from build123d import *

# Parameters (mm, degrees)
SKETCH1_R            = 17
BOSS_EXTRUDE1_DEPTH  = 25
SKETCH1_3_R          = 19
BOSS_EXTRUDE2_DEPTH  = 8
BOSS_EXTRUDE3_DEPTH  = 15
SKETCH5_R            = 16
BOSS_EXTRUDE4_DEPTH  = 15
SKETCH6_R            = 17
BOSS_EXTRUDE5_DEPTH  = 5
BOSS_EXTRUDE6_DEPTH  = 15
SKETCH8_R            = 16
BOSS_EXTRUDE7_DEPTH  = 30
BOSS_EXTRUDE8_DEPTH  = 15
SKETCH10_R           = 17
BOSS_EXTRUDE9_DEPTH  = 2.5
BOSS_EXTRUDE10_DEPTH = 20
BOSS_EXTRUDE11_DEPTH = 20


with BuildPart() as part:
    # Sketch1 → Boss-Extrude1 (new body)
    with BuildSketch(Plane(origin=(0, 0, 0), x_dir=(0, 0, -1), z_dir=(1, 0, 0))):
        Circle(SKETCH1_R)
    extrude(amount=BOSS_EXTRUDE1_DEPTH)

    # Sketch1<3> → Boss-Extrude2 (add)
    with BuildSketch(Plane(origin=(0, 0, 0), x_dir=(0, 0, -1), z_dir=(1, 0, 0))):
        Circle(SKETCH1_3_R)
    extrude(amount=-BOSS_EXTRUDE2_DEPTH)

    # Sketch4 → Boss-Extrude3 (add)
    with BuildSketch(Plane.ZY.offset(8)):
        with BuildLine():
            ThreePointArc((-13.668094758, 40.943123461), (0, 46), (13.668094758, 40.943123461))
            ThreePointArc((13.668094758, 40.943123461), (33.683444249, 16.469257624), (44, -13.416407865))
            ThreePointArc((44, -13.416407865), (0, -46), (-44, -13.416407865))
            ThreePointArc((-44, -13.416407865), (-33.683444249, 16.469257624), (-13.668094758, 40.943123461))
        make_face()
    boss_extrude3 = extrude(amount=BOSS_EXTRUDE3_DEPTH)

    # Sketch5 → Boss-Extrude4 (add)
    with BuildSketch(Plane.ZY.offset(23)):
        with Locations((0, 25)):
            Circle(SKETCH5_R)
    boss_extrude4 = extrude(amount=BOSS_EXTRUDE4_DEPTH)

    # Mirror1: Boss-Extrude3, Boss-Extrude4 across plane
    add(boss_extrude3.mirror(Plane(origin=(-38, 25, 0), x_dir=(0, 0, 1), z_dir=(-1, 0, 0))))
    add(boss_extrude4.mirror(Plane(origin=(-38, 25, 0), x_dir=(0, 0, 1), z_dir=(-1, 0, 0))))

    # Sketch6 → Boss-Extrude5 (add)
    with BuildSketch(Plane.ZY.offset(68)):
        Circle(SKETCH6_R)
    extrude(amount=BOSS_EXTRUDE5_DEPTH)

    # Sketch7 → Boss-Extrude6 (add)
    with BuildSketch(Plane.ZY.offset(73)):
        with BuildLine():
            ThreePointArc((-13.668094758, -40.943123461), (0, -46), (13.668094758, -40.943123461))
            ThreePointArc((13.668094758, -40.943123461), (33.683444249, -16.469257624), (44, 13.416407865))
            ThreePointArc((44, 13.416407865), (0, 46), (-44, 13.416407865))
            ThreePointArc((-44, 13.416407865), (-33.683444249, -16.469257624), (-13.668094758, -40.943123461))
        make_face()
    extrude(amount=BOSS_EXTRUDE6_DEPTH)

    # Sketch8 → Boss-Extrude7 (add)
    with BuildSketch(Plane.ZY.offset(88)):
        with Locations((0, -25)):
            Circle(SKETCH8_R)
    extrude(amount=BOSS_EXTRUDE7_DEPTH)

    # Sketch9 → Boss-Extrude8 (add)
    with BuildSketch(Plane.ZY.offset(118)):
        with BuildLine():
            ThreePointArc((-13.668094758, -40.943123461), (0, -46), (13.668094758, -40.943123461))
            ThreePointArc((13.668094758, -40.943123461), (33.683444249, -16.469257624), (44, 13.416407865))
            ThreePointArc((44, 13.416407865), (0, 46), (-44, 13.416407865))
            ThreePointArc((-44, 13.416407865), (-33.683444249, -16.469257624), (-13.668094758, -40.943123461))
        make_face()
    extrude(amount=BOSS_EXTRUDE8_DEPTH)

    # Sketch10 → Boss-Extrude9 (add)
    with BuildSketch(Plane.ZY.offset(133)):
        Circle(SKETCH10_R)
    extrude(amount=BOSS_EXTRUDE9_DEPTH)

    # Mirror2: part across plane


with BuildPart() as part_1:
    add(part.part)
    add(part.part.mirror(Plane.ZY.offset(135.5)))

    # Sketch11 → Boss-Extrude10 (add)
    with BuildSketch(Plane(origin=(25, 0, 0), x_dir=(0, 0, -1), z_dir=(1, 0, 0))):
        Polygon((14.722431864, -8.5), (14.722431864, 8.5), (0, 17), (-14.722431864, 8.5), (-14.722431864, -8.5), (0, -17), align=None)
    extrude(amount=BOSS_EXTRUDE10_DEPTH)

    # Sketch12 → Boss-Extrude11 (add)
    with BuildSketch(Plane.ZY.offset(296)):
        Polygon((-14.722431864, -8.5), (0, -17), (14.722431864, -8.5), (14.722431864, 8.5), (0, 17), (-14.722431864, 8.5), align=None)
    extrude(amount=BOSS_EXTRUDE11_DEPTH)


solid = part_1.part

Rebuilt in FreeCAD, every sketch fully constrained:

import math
import FreeCAD as App
import Part
import Sketcher
Q = App.Units.Quantity


def add_polygon(sketch, points):
    """Adds a closed chain of lines whose ends are joined by coincident constraints."""
    first, n = sketch.GeometryCount, len(points)
    for a, b in zip(points, points[1:] + points[:1]):
        sketch.addGeometry(Part.LineSegment(App.Vector(*a, 0), App.Vector(*b, 0)), False)
    for i in range(n):
        sketch.addConstraint(Sketcher.Constraint("Coincident", first + i, 2, first + (i + 1) % n, 1))

doc = App.newDocument("Part")
params = doc.addObject("Spreadsheet::Sheet", "Params")
for row, (alias, value) in enumerate([
    ("sketch1_diameter", "34 mm"),
    ("pad1_length", "25 mm"),
    ("sketch2_diameter", "38 mm"),
    ("pad2_length", "8 mm"),
    ("sketch3_radius", "21 mm"),
    ("sketch3_radius2", "90 mm"),
    ("sketch3_radius3", "46 mm"),
    ("pad3_length", "15 mm"),
    ("sketch4_diameter", "32 mm"),
    ("pad4_length", "15 mm"),
    ("sketch5_diameter", "34 mm"),
    ("pad5_length", "5 mm"),
    ("sketch6_radius", "21 mm"),
    ("sketch6_radius2", "90 mm"),
    ("sketch6_radius3", "46 mm"),
    ("pad6_length", "15 mm"),
    ("sketch7_diameter", "32 mm"),
    ("pad7_length", "30 mm"),
    ("sketch8_radius", "21 mm"),
    ("sketch8_radius2", "90 mm"),
    ("sketch8_radius3", "46 mm"),
    ("pad8_length", "15 mm"),
    ("sketch9_diameter", "34 mm"),
    ("pad9_length", "2.5 mm"),
    ("sketch10_width", "17 mm"),
    ("sketch10_length", "17 mm"),
    ("pad10_length", "20 mm"),
    ("sketch11_width", "17 mm"),
    ("sketch11_length", "17 mm"),
    ("pad11_length", "20 mm"),
], start=1):
    params.set(f"A{row}", alias)
    params.set(f"B{row}", "=" + value)
    params.setAlias(f"B{row}", alias)

body = doc.addObject("PartDesign::Body", "Body")

sketch1 = body.newObject("Sketcher::SketchObject", "Sketch")
sketch1.AttachmentSupport = (doc.getObject("YZ_Plane"), [""])
sketch1.MapMode = "FlatFace"
sketch1.addGeometry(Part.Circle(App.Vector(0, 0, 0), App.Vector(0, 0, 1), 17), False)
sketch1.addConstraint(Sketcher.Constraint("Coincident", 0, 3, -1, 1))
sketch1.addConstraint(Sketcher.Constraint("Diameter", 0, 34.0))
sketch1.setExpression("Constraints[1]", "Params.sketch1_diameter")
pad1 = body.newObject("PartDesign::Pad", "Pad")
pad1.Profile = sketch1
pad1.setExpression("Length", "Params.pad1_length")

sketch2 = body.newObject("Sketcher::SketchObject", "Sketch001")
sketch2.AttachmentSupport = (doc.getObject("YZ_Plane"), [""])
sketch2.MapMode = "FlatFace"
sketch2.addGeometry(Part.Circle(App.Vector(0, 0, 0), App.Vector(0, 0, 1), 19), False)
sketch2.addConstraint(Sketcher.Constraint("Coincident", 0, 3, -1, 1))
sketch2.addConstraint(Sketcher.Constraint("Diameter", 0, 38.0))
sketch2.setExpression("Constraints[1]", "Params.sketch2_diameter")
pad2 = body.newObject("PartDesign::Pad", "Pad001")
pad2.Profile = sketch2
pad2.setExpression("Length", "Params.pad2_length")
pad2.Reversed = True

sketch3 = body.newObject("Sketcher::SketchObject", "Sketch002")
sketch3.AttachmentSupport = (doc.getObject("YZ_Plane"), [""])
sketch3.MapMode = "FlatFace"
sketch3.AttachmentOffset = App.Placement(App.Vector(0, 0, -8), App.Rotation())
sketch3.addGeometry(Part.ArcOfCircle(Part.Circle(App.Vector(25, 0, 0), App.Vector(0, 0, 1), 21), math.radians(-41), math.radians(41)), False)
sketch3.addGeometry(Part.ArcOfCircle(Part.Circle(App.Vector(-27, 45, 0), App.Vector(0, 0, 1), 90), math.radians(-81), math.radians(-41)), False)
sketch3.addGeometry(Part.ArcOfCircle(Part.Circle(App.Vector(0, 0, 0), App.Vector(0, 0, 1), 46), math.radians(107), math.radians(253)), False)
sketch3.addGeometry(Part.ArcOfCircle(Part.Circle(App.Vector(-27, -45, 0), App.Vector(0, 0, 1), 90), math.radians(41), math.radians(81)), False)
sketch3.addConstraint(Sketcher.Constraint("Tangent", 0, 1, 1, 2))
sketch3.addConstraint(Sketcher.Constraint("Coincident", 1, 1, 2, 2))
sketch3.addConstraint(Sketcher.Constraint("Coincident", 2, 1, 3, 2))
sketch3.addConstraint(Sketcher.Constraint("Tangent", 3, 1, 0, 2))
sketch3.addConstraint(Sketcher.Constraint("Coincident", 2, 3, -1, 1))
sketch3.addConstraint(Sketcher.Constraint("Equal", 1, 3))
sketch3.addConstraint(Sketcher.Constraint("Symmetric", 1, 3, 3, 3, -1))
sketch3.addConstraint(Sketcher.Constraint("Radius", 0, 21.0))
sketch3.addConstraint(Sketcher.Constraint("Radius", 1, 90.0))
sketch3.addConstraint(Sketcher.Constraint("Radius", 2, 46.0))
sketch3.addConstraint(Sketcher.Constraint("DistanceX", -1, 1, 0, 3, 25.0))
sketch3.addConstraint(Sketcher.Constraint("DistanceY", 1, 1, -1, 1, 44.0))
sketch3.setExpression("Constraints[7]", "Params.sketch3_radius")
sketch3.setExpression("Constraints[8]", "Params.sketch3_radius2")
sketch3.setExpression("Constraints[9]", "Params.sketch3_radius3")
pad3 = body.newObject("PartDesign::Pad", "Pad002")
pad3.Profile = sketch3
pad3.setExpression("Length", "Params.pad3_length")
pad3.Reversed = True

sketch4 = body.newObject("Sketcher::SketchObject", "Sketch003")
sketch4.AttachmentSupport = (doc.getObject("YZ_Plane"), [""])
sketch4.MapMode = "FlatFace"
sketch4.AttachmentOffset = App.Placement(App.Vector(0, 0, -23), App.Rotation())
sketch4.addGeometry(Part.Circle(App.Vector(25, 0, 0), App.Vector(0, 0, 1), 16), False)
sketch4.addConstraint(Sketcher.Constraint("PointOnObject", 0, 3, -1))
sketch4.addConstraint(Sketcher.Constraint("Diameter", 0, 32.0))
sketch4.addConstraint(Sketcher.Constraint("DistanceX", -1, 1, 0, 3, 25.0))
sketch4.setExpression("Constraints[1]", "Params.sketch4_diameter")
pad4 = body.newObject("PartDesign::Pad", "Pad003")
pad4.Profile = sketch4
pad4.setExpression("Length", "Params.pad4_length")
pad4.Reversed = True
doc.recompute()

datumplane = body.newObject("PartDesign::Plane", "DatumPlane")
datumplane.AttachmentSupport = (doc.getObject("YZ_Plane"), [""])
datumplane.MapMode = "FlatFace"
datumplane.AttachmentOffset = App.Placement(App.Vector(0, 0, -38), App.Rotation())
mirrored = body.newObject("PartDesign::Mirrored", "Mirrored")
mirrored.Originals = [pad3, pad4]
mirrored.MirrorPlane = (datumplane, [""])
body.Tip = mirrored

sketch5 = body.newObject("Sketcher::SketchObject", "Sketch004")
sketch5.AttachmentSupport = (doc.getObject("YZ_Plane"), [""])
sketch5.MapMode = "FlatFace"
sketch5.AttachmentOffset = App.Placement(App.Vector(0, 0, -68), App.Rotation())
sketch5.addGeometry(Part.Circle(App.Vector(0, 0, 0), App.Vector(0, 0, 1), 17), False)
sketch5.addConstraint(Sketcher.Constraint("Coincident", 0, 3, -1, 1))
sketch5.addConstraint(Sketcher.Constraint("Diameter", 0, 34.0))
sketch5.setExpression("Constraints[1]", "Params.sketch5_diameter")
pad5 = body.newObject("PartDesign::Pad", "Pad004")
pad5.Profile = sketch5
pad5.setExpression("Length", "Params.pad5_length")
pad5.Reversed = True

sketch6 = body.newObject("Sketcher::SketchObject", "Sketch005")
sketch6.AttachmentSupport = (doc.getObject("YZ_Plane"), [""])
sketch6.MapMode = "FlatFace"
sketch6.AttachmentOffset = App.Placement(App.Vector(0, 0, -73), App.Rotation())
sketch6.addGeometry(Part.ArcOfCircle(Part.Circle(App.Vector(-25, 0, 0), App.Vector(0, 0, 1), 21), math.radians(139), math.radians(221)), False)
sketch6.addGeometry(Part.ArcOfCircle(Part.Circle(App.Vector(27, -45, 0), App.Vector(0, 0, 1), 90), math.radians(99), math.radians(139)), False)
sketch6.addGeometry(Part.ArcOfCircle(Part.Circle(App.Vector(0, 0, 0), App.Vector(0, 0, 1), 46), math.radians(-73), math.radians(73)), False)
sketch6.addGeometry(Part.ArcOfCircle(Part.Circle(App.Vector(27, 45, 0), App.Vector(0, 0, 1), 90), math.radians(-139), math.radians(-99)), False)
sketch6.addConstraint(Sketcher.Constraint("Tangent", 0, 1, 1, 2))
sketch6.addConstraint(Sketcher.Constraint("Coincident", 1, 1, 2, 2))
sketch6.addConstraint(Sketcher.Constraint("Coincident", 2, 1, 3, 2))
sketch6.addConstraint(Sketcher.Constraint("Tangent", 3, 1, 0, 2))
sketch6.addConstraint(Sketcher.Constraint("Coincident", 2, 3, -1, 1))
sketch6.addConstraint(Sketcher.Constraint("Equal", 1, 3))
sketch6.addConstraint(Sketcher.Constraint("Symmetric", 1, 3, 3, 3, -1))
sketch6.addConstraint(Sketcher.Constraint("Radius", 0, 21.0))
sketch6.addConstraint(Sketcher.Constraint("Radius", 1, 90.0))
sketch6.addConstraint(Sketcher.Constraint("Radius", 2, 46.0))
sketch6.addConstraint(Sketcher.Constraint("DistanceX", 0, 3, -1, 1, 25.0))
sketch6.addConstraint(Sketcher.Constraint("DistanceY", -1, 1, 1, 1, 44.0))
sketch6.setExpression("Constraints[7]", "Params.sketch6_radius")
sketch6.setExpression("Constraints[8]", "Params.sketch6_radius2")
sketch6.setExpression("Constraints[9]", "Params.sketch6_radius3")
pad6 = body.newObject("PartDesign::Pad", "Pad005")
pad6.Profile = sketch6
pad6.setExpression("Length", "Params.pad6_length")
pad6.Reversed = True

sketch7 = body.newObject("Sketcher::SketchObject", "Sketch006")
sketch7.AttachmentSupport = (doc.getObject("YZ_Plane"), [""])
sketch7.MapMode = "FlatFace"
sketch7.AttachmentOffset = App.Placement(App.Vector(0, 0, -88), App.Rotation())
sketch7.addGeometry(Part.Circle(App.Vector(-25, 0, 0), App.Vector(0, 0, 1), 16), False)
sketch7.addConstraint(Sketcher.Constraint("PointOnObject", 0, 3, -1))
sketch7.addConstraint(Sketcher.Constraint("Diameter", 0, 32.0))
sketch7.addConstraint(Sketcher.Constraint("DistanceX", 0, 3, -1, 1, 25.0))
sketch7.setExpression("Constraints[1]", "Params.sketch7_diameter")
pad7 = body.newObject("PartDesign::Pad", "Pad006")
pad7.Profile = sketch7
pad7.setExpression("Length", "Params.pad7_length")
pad7.Reversed = True

sketch8 = body.newObject("Sketcher::SketchObject", "Sketch007")
sketch8.AttachmentSupport = (doc.getObject("YZ_Plane"), [""])
sketch8.MapMode = "FlatFace"
sketch8.AttachmentOffset = App.Placement(App.Vector(0, 0, -118), App.Rotation())
sketch8.addGeometry(Part.ArcOfCircle(Part.Circle(App.Vector(-25, 0, 0), App.Vector(0, 0, 1), 21), math.radians(139), math.radians(221)), False)
sketch8.addGeometry(Part.ArcOfCircle(Part.Circle(App.Vector(27, -45, 0), App.Vector(0, 0, 1), 90), math.radians(99), math.radians(139)), False)
sketch8.addGeometry(Part.ArcOfCircle(Part.Circle(App.Vector(0, 0, 0), App.Vector(0, 0, 1), 46), math.radians(-73), math.radians(73)), False)
sketch8.addGeometry(Part.ArcOfCircle(Part.Circle(App.Vector(27, 45, 0), App.Vector(0, 0, 1), 90), math.radians(-139), math.radians(-99)), False)
sketch8.addConstraint(Sketcher.Constraint("Tangent", 0, 1, 1, 2))
sketch8.addConstraint(Sketcher.Constraint("Coincident", 1, 1, 2, 2))
sketch8.addConstraint(Sketcher.Constraint("Coincident", 2, 1, 3, 2))
sketch8.addConstraint(Sketcher.Constraint("Tangent", 3, 1, 0, 2))
sketch8.addConstraint(Sketcher.Constraint("Coincident", 2, 3, -1, 1))
sketch8.addConstraint(Sketcher.Constraint("Equal", 1, 3))
sketch8.addConstraint(Sketcher.Constraint("Symmetric", 1, 3, 3, 3, -1))
sketch8.addConstraint(Sketcher.Constraint("Radius", 0, 21.0))
sketch8.addConstraint(Sketcher.Constraint("Radius", 1, 90.0))
sketch8.addConstraint(Sketcher.Constraint("Radius", 2, 46.0))
sketch8.addConstraint(Sketcher.Constraint("DistanceX", 0, 3, -1, 1, 25.0))
sketch8.addConstraint(Sketcher.Constraint("DistanceY", -1, 1, 1, 1, 44.0))
sketch8.setExpression("Constraints[7]", "Params.sketch8_radius")
sketch8.setExpression("Constraints[8]", "Params.sketch8_radius2")
sketch8.setExpression("Constraints[9]", "Params.sketch8_radius3")
pad8 = body.newObject("PartDesign::Pad", "Pad007")
pad8.Profile = sketch8
pad8.setExpression("Length", "Params.pad8_length")
pad8.Reversed = True

sketch9 = body.newObject("Sketcher::SketchObject", "Sketch008")
sketch9.AttachmentSupport = (doc.getObject("YZ_Plane"), [""])
sketch9.MapMode = "FlatFace"
sketch9.AttachmentOffset = App.Placement(App.Vector(0, 0, -133), App.Rotation())
sketch9.addGeometry(Part.Circle(App.Vector(0, 0, 0), App.Vector(0, 0, 1), 17), False)
sketch9.addConstraint(Sketcher.Constraint("Coincident", 0, 3, -1, 1))
sketch9.addConstraint(Sketcher.Constraint("Diameter", 0, 34.0))
sketch9.setExpression("Constraints[1]", "Params.sketch9_diameter")
pad9 = body.newObject("PartDesign::Pad", "Pad008")
pad9.Profile = sketch9
pad9.setExpression("Length", "Params.pad9_length")
pad9.Reversed = True
body2 = doc.addObject("PartDesign::Body", "Body001")
doc.recompute()

body2.BaseFeature = body
doc.recompute()

mirroring = doc.addObject("Part::Mirroring", "Mirroring")
mirroring.Source = body
mirroring.Base = App.Vector(-135.5, 0, 0)
mirroring.Normal = App.Vector(-1, 0, 0)
body3 = doc.addObject("PartDesign::Body", "Body002")
body3.BaseFeature = mirroring
boolean = body2.newObject("PartDesign::Boolean", "Boolean")
boolean.Type = "Fuse"
boolean.addObjects([body3])
doc.recompute()

sketch10 = body2.newObject("Sketcher::SketchObject", "Sketch009")
sketch10.AttachmentSupport = (doc.getObject("YZ_Plane001"), [""])
sketch10.MapMode = "FlatFace"
sketch10.AttachmentOffset = App.Placement(App.Vector(0, 0, 25), App.Rotation())
add_polygon(sketch10, [(-8, -15), (8, -15), (17, 0), (8, 15), (-8, 15), (-17, 0)])
sketch10.addConstraint(Sketcher.Constraint("Horizontal", 0))
sketch10.addConstraint(Sketcher.Constraint("Horizontal", 3))
sketch10.addConstraint(Sketcher.Constraint("Symmetric", 0, 2, 3, 2, -1, 1))
sketch10.addConstraint(Sketcher.Constraint("Symmetric", 1, 2, 4, 2, -1, 1))
sketch10.addConstraint(Sketcher.Constraint("PointOnObject", 1, 2, -1))
sketch10.addConstraint(Sketcher.Constraint("Parallel", 2, 5))
sketch10.addConstraint(Sketcher.Constraint("Vertical", 0, 2, 2, 2))
sketch10.addConstraint(Sketcher.Constraint("DistanceX", 0, 1, 0, 2, 17.0))
sketch10.addConstraint(Sketcher.Constraint("Angle", 1, Q("60 deg")))
sketch10.addConstraint(Sketcher.Constraint("Distance", 1, 17.0))
sketch10.setExpression("Constraints[13]", "Params.sketch10_width")
sketch10.setExpression("Constraints[15]", "Params.sketch10_length")
pad10 = body2.newObject("PartDesign::Pad", "Pad009")
pad10.Profile = sketch10
pad10.setExpression("Length", "Params.pad10_length")

sketch11 = body2.newObject("Sketcher::SketchObject", "Sketch010")
sketch11.AttachmentSupport = (doc.getObject("YZ_Plane001"), [""])
sketch11.MapMode = "FlatFace"
sketch11.AttachmentOffset = App.Placement(App.Vector(0, 0, -296), App.Rotation())
add_polygon(sketch11, [(-8, -15), (-17, 0), (-8, 15), (8, 15), (17, 0), (8, -15)])
sketch11.addConstraint(Sketcher.Constraint("Horizontal", 2))
sketch11.addConstraint(Sketcher.Constraint("Horizontal", 5))
sketch11.addConstraint(Sketcher.Constraint("Symmetric", 0, 2, 3, 2, -1, 1))
sketch11.addConstraint(Sketcher.Constraint("Symmetric", 1, 2, 4, 2, -1, 1))
sketch11.addConstraint(Sketcher.Constraint("PointOnObject", 0, 2, -1))
sketch11.addConstraint(Sketcher.Constraint("Parallel", 0, 3))
sketch11.addConstraint(Sketcher.Constraint("Vertical", 2, 2, 4, 2))
sketch11.addConstraint(Sketcher.Constraint("DistanceX", 2, 1, 2, 2, 17.0))
sketch11.addConstraint(Sketcher.Constraint("Angle", 0, Q("120 deg")))
sketch11.addConstraint(Sketcher.Constraint("Distance", 0, 17.0))
sketch11.setExpression("Constraints[13]", "Params.sketch11_width")
sketch11.setExpression("Constraints[15]", "Params.sketch11_length")
pad11 = body2.newObject("PartDesign::Pad", "Pad010")
pad11.Profile = sketch11
pad11.setExpression("Length", "Params.pad11_length")
pad11.Reversed = True
mirroring.Visibility = False

doc.recompute()
